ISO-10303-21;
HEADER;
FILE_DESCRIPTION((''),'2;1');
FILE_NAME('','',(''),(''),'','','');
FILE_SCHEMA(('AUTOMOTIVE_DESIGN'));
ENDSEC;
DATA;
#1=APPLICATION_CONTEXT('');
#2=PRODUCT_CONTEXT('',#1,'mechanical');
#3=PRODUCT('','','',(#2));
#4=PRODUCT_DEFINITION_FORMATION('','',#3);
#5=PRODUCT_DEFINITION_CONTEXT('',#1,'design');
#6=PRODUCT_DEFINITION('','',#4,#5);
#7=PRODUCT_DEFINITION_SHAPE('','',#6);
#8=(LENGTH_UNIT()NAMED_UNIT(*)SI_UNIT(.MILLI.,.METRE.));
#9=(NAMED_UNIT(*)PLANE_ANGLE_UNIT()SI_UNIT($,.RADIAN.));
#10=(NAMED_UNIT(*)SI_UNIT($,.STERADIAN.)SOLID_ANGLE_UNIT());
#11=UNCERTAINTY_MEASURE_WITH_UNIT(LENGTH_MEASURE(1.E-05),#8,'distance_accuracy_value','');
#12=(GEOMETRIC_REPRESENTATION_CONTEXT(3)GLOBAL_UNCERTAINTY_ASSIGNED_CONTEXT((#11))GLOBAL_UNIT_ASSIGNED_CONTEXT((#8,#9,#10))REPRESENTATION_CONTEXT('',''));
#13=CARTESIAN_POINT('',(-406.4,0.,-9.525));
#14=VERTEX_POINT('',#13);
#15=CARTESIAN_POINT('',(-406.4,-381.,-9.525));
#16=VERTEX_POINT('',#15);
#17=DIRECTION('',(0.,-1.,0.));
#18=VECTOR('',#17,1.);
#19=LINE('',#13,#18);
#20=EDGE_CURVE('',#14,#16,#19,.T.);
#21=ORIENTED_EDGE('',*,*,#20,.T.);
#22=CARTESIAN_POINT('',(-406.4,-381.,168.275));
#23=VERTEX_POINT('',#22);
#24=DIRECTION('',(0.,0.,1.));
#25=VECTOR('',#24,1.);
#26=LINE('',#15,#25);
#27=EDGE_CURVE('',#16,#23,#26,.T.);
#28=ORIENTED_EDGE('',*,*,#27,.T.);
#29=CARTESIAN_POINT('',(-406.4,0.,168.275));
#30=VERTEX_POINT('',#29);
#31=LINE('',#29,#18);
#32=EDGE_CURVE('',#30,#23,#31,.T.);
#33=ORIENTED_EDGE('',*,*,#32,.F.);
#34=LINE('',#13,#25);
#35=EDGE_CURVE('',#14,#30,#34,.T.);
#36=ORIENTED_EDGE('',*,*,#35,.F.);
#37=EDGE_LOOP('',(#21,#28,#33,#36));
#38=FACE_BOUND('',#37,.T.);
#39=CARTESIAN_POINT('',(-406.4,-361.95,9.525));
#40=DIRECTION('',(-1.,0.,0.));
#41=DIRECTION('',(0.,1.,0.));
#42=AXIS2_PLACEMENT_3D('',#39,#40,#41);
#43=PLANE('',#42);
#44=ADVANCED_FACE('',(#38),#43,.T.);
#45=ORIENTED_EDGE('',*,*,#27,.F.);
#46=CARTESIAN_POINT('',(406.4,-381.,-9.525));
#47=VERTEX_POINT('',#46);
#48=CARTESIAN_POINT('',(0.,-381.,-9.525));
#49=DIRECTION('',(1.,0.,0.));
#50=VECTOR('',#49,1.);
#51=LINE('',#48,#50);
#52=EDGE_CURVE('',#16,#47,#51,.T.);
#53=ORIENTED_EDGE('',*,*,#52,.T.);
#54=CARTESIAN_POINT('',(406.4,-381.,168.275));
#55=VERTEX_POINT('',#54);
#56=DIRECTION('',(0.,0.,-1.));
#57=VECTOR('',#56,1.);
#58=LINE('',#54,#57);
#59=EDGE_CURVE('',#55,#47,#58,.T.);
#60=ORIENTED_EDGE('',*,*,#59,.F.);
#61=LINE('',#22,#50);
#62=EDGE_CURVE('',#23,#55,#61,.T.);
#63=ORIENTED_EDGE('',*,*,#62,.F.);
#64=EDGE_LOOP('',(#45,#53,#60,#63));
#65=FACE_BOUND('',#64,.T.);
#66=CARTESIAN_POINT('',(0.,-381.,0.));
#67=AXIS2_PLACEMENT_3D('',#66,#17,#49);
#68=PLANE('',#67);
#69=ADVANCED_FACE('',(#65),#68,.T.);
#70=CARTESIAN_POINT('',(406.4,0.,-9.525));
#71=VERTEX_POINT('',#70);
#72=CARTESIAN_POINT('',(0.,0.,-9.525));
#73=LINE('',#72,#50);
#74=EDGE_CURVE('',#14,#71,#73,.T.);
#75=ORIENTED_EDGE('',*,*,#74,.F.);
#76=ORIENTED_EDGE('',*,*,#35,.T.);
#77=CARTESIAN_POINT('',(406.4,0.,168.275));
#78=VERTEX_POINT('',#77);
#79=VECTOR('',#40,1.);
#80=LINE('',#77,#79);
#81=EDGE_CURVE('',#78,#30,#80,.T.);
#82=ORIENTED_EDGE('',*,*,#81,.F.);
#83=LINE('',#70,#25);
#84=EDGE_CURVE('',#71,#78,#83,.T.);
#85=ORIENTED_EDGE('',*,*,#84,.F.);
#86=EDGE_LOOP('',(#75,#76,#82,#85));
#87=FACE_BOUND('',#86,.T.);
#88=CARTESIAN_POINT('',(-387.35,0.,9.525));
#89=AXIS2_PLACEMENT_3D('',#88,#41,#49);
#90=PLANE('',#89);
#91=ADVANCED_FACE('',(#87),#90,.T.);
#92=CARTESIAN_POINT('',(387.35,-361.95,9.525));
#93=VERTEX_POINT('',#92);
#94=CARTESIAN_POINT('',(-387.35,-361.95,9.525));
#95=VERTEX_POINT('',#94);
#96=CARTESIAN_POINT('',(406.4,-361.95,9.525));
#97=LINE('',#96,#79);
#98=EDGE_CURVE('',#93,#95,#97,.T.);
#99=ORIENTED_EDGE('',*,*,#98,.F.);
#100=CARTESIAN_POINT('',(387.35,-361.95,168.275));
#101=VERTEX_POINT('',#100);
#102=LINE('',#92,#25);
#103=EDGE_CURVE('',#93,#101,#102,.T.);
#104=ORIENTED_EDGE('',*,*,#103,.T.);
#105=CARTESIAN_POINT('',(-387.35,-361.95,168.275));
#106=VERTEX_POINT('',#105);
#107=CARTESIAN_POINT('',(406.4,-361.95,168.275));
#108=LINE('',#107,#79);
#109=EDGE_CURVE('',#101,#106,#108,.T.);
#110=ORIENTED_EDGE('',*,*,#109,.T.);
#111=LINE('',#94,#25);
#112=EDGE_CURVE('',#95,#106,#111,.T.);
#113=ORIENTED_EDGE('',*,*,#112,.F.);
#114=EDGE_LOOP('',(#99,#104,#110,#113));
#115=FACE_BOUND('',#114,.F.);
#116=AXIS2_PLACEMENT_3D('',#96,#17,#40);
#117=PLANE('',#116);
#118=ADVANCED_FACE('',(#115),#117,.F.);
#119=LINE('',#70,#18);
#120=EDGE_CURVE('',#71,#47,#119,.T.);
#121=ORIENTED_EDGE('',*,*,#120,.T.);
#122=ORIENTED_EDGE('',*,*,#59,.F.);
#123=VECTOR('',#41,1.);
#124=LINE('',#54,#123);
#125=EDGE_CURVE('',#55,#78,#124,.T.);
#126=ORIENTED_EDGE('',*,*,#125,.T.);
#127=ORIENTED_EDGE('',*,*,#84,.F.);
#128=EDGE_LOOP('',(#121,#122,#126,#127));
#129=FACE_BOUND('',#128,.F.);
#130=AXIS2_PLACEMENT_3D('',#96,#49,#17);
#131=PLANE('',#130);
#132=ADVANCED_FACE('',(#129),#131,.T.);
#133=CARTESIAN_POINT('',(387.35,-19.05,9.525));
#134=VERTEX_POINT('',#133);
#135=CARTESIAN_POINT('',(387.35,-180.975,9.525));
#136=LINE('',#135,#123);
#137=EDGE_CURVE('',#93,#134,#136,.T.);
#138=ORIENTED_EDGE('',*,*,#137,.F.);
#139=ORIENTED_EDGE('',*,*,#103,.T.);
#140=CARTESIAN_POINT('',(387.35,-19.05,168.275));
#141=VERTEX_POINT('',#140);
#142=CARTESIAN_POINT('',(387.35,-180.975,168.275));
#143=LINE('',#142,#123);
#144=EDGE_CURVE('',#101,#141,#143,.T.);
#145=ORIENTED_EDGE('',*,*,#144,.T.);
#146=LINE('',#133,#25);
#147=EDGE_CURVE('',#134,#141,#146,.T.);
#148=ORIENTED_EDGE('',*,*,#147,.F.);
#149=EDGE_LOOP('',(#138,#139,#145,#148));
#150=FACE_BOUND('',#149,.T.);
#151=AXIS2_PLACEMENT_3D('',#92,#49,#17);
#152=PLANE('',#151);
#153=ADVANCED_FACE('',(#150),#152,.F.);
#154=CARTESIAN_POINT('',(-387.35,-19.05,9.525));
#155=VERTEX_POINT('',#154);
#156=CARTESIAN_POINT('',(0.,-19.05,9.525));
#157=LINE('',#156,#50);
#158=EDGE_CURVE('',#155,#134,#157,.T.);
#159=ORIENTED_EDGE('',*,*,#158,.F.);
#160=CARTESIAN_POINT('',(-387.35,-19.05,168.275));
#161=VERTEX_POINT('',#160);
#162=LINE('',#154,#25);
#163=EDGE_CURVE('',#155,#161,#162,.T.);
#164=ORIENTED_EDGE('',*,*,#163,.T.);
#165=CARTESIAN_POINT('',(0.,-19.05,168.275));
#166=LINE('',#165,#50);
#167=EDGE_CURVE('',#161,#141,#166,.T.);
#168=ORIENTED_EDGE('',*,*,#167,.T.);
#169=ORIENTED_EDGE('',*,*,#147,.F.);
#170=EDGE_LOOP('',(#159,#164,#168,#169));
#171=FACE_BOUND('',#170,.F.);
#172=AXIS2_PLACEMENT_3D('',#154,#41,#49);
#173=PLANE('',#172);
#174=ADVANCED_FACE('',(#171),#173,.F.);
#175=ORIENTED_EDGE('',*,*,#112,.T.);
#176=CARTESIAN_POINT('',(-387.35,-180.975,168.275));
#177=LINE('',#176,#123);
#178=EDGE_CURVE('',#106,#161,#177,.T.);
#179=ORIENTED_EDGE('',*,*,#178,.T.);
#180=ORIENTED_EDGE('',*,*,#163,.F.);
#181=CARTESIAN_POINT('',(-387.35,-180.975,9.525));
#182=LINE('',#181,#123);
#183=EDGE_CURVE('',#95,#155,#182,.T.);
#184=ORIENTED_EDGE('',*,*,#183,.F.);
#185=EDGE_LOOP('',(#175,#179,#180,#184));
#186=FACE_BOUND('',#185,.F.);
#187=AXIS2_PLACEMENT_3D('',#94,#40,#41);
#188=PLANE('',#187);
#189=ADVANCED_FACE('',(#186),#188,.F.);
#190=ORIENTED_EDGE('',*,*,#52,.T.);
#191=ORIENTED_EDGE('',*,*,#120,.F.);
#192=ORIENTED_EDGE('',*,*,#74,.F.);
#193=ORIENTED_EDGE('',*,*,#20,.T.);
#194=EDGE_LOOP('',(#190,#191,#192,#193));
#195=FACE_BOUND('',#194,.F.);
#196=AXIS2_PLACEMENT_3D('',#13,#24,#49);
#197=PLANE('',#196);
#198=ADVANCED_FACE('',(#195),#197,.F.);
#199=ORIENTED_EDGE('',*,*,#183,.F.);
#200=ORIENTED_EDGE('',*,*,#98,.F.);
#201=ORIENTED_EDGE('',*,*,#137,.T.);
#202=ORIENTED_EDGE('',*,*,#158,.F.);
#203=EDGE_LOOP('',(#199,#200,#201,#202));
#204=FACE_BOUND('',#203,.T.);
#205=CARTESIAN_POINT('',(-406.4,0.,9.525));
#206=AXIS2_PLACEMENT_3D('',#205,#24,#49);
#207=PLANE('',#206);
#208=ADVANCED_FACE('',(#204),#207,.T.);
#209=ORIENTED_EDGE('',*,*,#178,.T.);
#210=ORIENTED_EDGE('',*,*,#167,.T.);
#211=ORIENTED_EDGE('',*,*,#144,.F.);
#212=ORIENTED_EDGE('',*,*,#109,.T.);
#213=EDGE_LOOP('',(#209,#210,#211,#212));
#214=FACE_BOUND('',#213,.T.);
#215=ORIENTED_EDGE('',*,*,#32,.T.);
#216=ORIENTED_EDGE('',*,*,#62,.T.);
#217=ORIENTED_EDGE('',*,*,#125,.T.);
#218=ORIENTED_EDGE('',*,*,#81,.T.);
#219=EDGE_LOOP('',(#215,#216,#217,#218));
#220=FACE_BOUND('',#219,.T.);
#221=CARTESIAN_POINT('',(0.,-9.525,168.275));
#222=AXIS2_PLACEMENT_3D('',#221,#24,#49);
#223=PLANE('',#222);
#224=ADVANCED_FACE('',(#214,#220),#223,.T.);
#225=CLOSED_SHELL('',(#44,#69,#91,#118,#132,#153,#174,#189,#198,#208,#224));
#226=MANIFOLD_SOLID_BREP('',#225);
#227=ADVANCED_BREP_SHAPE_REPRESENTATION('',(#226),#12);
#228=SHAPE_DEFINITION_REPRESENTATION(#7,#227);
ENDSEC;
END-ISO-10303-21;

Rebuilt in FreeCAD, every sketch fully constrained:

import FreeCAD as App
import Part
import Sketcher
Q = App.Units.Quantity

doc = App.newDocument("Part")
params = doc.addObject("Spreadsheet::Sheet", "Params")
for row, (alias, value) in enumerate([
    ("sketch1_width", "32 in"),
    ("sketch1_height", "0.75 in"),
    ("pad1_length", "15 in"),
    ("sketch2_width", "0.75 in"),
    ("sketch2_height", "14.25 in"),
    ("pad2_length", "6.25 in"),
    ("sketch3_width", "32 in"),
    ("sketch3_width2", "30.5 in"),
    ("sketch3_height", "0.75 in"),
    ("pad3_length", "6.25 in"),
], start=1):
    params.set(f"A{row}", alias)
    params.set(f"B{row}", "=" + value)
    params.setAlias(f"B{row}", alias)

body = doc.addObject("PartDesign::Body", "Body")

# Sketch on XZ plane
sketch1 = body.newObject("Sketcher::SketchObject", "Sketch")
sketch1.AttachmentSupport = (doc.getObject("XZ_Plane"), [""])
sketch1.MapMode = "FlatFace"
sketch1.addGeometry(Part.LineSegment(App.Vector(-406.4, 9.525, 0), App.Vector(-406.4, -9.525, 0)), False)
sketch1.addGeometry(Part.LineSegment(App.Vector(-406.4, -9.525, 0), App.Vector(406.4, -9.525, 0)), False)
sketch1.addGeometry(Part.LineSegment(App.Vector(406.4, -9.525, 0), App.Vector(406.4, 9.525, 0)), False)
sketch1.addGeometry(Part.LineSegment(App.Vector(406.4, 9.525, 0), App.Vector(-406.4, 9.525, 0)), False)
sketch1.addConstraint(Sketcher.Constraint("Coincident", 0, 2, 1, 1))
sketch1.addConstraint(Sketcher.Constraint("Coincident", 1, 2, 2, 1))
sketch1.addConstraint(Sketcher.Constraint("Coincident", 2, 2, 3, 1))
sketch1.addConstraint(Sketcher.Constraint("Coincident", 3, 2, 0, 1))
sketch1.addConstraint(Sketcher.Constraint("Vertical", 0))
sketch1.addConstraint(Sketcher.Constraint("Horizontal", 1))
sketch1.addConstraint(Sketcher.Constraint("Vertical", 2))
sketch1.addConstraint(Sketcher.Constraint("Horizontal", 3))
sketch1.addConstraint(Sketcher.Constraint("Symmetric", 0, 2, 2, 2, -1, 1))
sketch1.addConstraint(Sketcher.Constraint("DistanceX", 1, 1, 1, 2, Q("32 in")))
sketch1.addConstraint(Sketcher.Constraint("DistanceY", 0, 2, 0, 1, Q("0.75 in")))
sketch1.setExpression("Constraints[9]", "Params.sketch1_width")
sketch1.setExpression("Constraints[10]", "Params.sketch1_height")
pad1 = body.newObject("PartDesign::Pad", "Pad")
pad1.Profile = sketch1
pad1.setExpression("Length", "Params.pad1_length")

# Sketch on XY plane
sketch2 = body.newObject("Sketcher::SketchObject", "Sketch001")
sketch2.AttachmentSupport = (doc.getObject("XY_Plane"), [""])
sketch2.MapMode = "FlatFace"
sketch2.AttachmentOffset = App.Placement(App.Vector(0, 0, 0.375 * 25.4), App.Rotation())
sketch2.addGeometry(Part.LineSegment(App.Vector(-406.4, 0, 0), App.Vector(-406.4, -361.95, 0)), False)
sketch2.addGeometry(Part.LineSegment(App.Vector(-406.4, -361.95, 0), App.Vector(-387.35, -361.95, 0)), False)
sketch2.addGeometry(Part.LineSegment(App.Vector(-387.35, -361.95, 0), App.Vector(-387.35, 0, 0)), False)
sketch2.addGeometry(Part.LineSegment(App.Vector(-387.35, 0, 0), App.Vector(-406.4, 0, 0)), False)
sketch2.addConstraint(Sketcher.Constraint("Coincident", 0, 2, 1, 1))
sketch2.addConstraint(Sketcher.Constraint("Coincident", 1, 2, 2, 1))
sketch2.addConstraint(Sketcher.Constraint("Coincident", 2, 2, 3, 1))
sketch2.addConstraint(Sketcher.Constraint("Coincident", 3, 2, 0, 1))
sketch2.addConstraint(Sketcher.Constraint("Vertical", 0))
sketch2.addConstraint(Sketcher.Constraint("Horizontal", 1))
sketch2.addConstraint(Sketcher.Constraint("Vertical", 2))
sketch2.addConstraint(Sketcher.Constraint("Horizontal", 3))
sketch2.addConstraint(Sketcher.Constraint("PointOnObject", 2, 2, -1))
sketch2.addConstraint(Sketcher.Constraint("DistanceX", 0, 2, -1, 1, Q("16 in")))
sketch2.addConstraint(Sketcher.Constraint("DistanceX", 1, 1, 1, 2, Q("0.75 in")))
sketch2.addConstraint(Sketcher.Constraint("DistanceY", 0, 2, 0, 1, Q("14.25 in")))
sketch2.setExpression("Constraints[10]", "Params.sketch2_width")
sketch2.setExpression("Constraints[11]", "Params.sketch2_height")
pad2 = body.newObject("PartDesign::Pad", "Pad001")
pad2.Profile = sketch2
pad2.setExpression("Length", "Params.pad2_length")
body2 = doc.addObject("PartDesign::Body", "Body001")
doc.recompute()

body2.BaseFeature = body
doc.recompute()

mirroring = doc.addObject("Part::Mirroring", "Mirroring")
mirroring.Source = body
mirroring.Base = App.Vector(0, 0, 0)
mirroring.Normal = App.Vector(1, 0, 0)
body3 = doc.addObject("PartDesign::Body", "Body002")
body3.BaseFeature = mirroring
boolean = body2.newObject("PartDesign::Boolean", "Boolean")
boolean.Type = "Fuse"
boolean.addObjects([body3])
doc.recompute()

# Sketch on XY plane
sketch3 = body2.newObject("Sketcher::SketchObject", "Sketch002")
sketch3.AttachmentSupport = (doc.getObject("XY_Plane001"), [""])
sketch3.MapMode = "FlatFace"
sketch3.AttachmentOffset = App.Placement(App.Vector(0, 0, 0.375 * 25.4), App.Rotation())
sketch3.addGeometry(Part.LineSegment(App.Vector(-387.35, 0, 0), App.Vector(-387.35, -19.05, 0)), False)
sketch3.addGeometry(Part.LineSegment(App.Vector(-387.35, -19.05, 0), App.Vector(387.35, -19.05, 0)), False)
sketch3.addGeometry(Part.LineSegment(App.Vector(387.35, -19.05, 0), App.Vector(387.35, 0, 0)), False)
sketch3.addGeometry(Part.LineSegment(App.Vector(387.35, 0, 0), App.Vector(-387.35, 0, 0)), False)
sketch3.addGeometry(Part.LineSegment(App.Vector(-406.4, -361.95, 0), App.Vector(-406.4, -381, 0)), False)
sketch3.addGeometry(Part.LineSegment(App.Vector(-406.4, -381, 0), App.Vector(406.4, -381, 0)), False)
sketch3.addGeometry(Part.LineSegment(App.Vector(406.4, -381, 0), App.Vector(406.4, -361.95, 0)), False)
sketch3.addGeometry(Part.LineSegment(App.Vector(406.4, -361.95, 0), App.Vector(-406.4, -361.95, 0)), False)
sketch3.addConstraint(Sketcher.Constraint("Coincident", 0, 2, 1, 1))
sketch3.addConstraint(Sketcher.Constraint("Coincident", 1, 2, 2, 1))
sketch3.addConstraint(Sketcher.Constraint("Coincident", 2, 2, 3, 1))
sketch3.addConstraint(Sketcher.Constraint("Coincident", 3, 2, 0, 1))
sketch3.addConstraint(Sketcher.Constraint("Coincident", 4, 2, 5, 1))
sketch3.addConstraint(Sketcher.Constraint("Coincident", 5, 2, 6, 1))
sketch3.addConstraint(Sketcher.Constraint("Coincident", 6, 2, 7, 1))
sketch3.addConstraint(Sketcher.Constraint("Coincident", 7, 2, 4, 1))
sketch3.addConstraint(Sketcher.Constraint("Vertical", 0))
sketch3.addConstraint(Sketcher.Constraint("Horizontal", 1))
sketch3.addConstraint(Sketcher.Constraint("Vertical", 2))
sketch3.addConstraint(Sketcher.Constraint("Horizontal", 3))
sketch3.addConstraint(Sketcher.Constraint("Vertical", 4))
sketch3.addConstraint(Sketcher.Constraint("Horizontal", 5))
sketch3.addConstraint(Sketcher.Constraint("Vertical", 6))
sketch3.addConstraint(Sketcher.Constraint("Horizontal", 7))
sketch3.addConstraint(Sketcher.Constraint("Symmetric", 2, 2, 3, 2, -1, 1))
sketch3.addConstraint(Sketcher.Constraint("Equal", 2, 4))
sketch3.addConstraint(Sketcher.Constraint("DistanceX", 5, 1, 5, 2, Q("32 in")))
sketch3.addConstraint(Sketcher.Constraint("DistanceX", 1, 1, 1, 2, Q("30.5 in")))
sketch3.addConstraint(Sketcher.Constraint("DistanceX", 4, 2, -1, 1, Q("16 in")))
sketch3.addConstraint(Sketcher.Constraint("DistanceY", 4, 2, -1, 1, Q("15 in")))
sketch3.addConstraint(Sketcher.Constraint("DistanceY", 0, 2, 0, 1, Q("0.75 in")))
sketch3.setExpression("Constraints[18]", "Params.sketch3_width")
sketch3.setExpression("Constraints[19]", "Params.sketch3_width2")
sketch3.setExpression("Constraints[22]", "Params.sketch3_height")
pad3 = body2.newObject("PartDesign::Pad", "Pad002")
pad3.Profile = sketch3
pad3.setExpression("Length", "Params.pad3_length")
mirroring.Visibility = False

doc.recompute()
